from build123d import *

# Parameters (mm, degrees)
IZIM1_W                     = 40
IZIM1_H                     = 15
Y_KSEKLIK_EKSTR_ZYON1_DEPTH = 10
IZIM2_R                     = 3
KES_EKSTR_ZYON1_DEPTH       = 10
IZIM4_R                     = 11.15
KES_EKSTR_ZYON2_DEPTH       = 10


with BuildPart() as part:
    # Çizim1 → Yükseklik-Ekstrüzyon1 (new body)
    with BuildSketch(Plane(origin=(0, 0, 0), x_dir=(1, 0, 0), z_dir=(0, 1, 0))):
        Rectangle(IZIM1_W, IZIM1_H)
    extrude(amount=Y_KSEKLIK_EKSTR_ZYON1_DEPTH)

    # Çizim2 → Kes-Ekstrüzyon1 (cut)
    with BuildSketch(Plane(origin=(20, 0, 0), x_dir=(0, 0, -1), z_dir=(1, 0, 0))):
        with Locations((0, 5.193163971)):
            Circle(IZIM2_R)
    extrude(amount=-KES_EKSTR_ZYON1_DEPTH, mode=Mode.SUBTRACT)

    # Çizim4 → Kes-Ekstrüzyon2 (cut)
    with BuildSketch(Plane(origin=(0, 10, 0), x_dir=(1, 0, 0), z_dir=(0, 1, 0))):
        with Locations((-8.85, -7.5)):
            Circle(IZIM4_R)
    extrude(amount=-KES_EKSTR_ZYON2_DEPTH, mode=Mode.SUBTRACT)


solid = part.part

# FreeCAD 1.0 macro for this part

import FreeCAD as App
import Part
import Sketcher

doc = App.newDocument("Part")
body = doc.addObject("PartDesign::Body", "Body")

sketch1 = body.newObject("Sketcher::SketchObject", "Sketch")
sketch1.AttachmentSupport = (doc.getObject("XZ_Plane"), [""])
sketch1.MapMode = "FlatFace"
sketch1.addGeometry([
    Part.LineSegment(App.Vector(-20, -8, 0), App.Vector(-20, 8, 0)),
    Part.LineSegment(App.Vector(-20, 8, 0), App.Vector(20, 8, 0)),
    Part.LineSegment(App.Vector(20, 8, 0), App.Vector(20, -8, 0)),
    Part.LineSegment(App.Vector(20, -8, 0), App.Vector(-20, -8, 0)),
], False)
sketch1.addConstraint([
    Sketcher.Constraint("Coincident", 0, 2, 1, 1),
    Sketcher.Constraint("Coincident", 1, 2, 2, 1),
    Sketcher.Constraint("Coincident", 2, 2, 3, 1),
    Sketcher.Constraint("Coincident", 3, 2, 0, 1),
    Sketcher.Constraint("Vertical", 0),
    Sketcher.Constraint("Horizontal", 1),
    Sketcher.Constraint("Vertical", 2),
    Sketcher.Constraint("Horizontal", 3),
    Sketcher.Constraint("Symmetric", 0, 2, 2, 2, -1, 1),
    Sketcher.Constraint("DistanceX", 1, 1, 1, 2, 40.0),
    Sketcher.Constraint("DistanceY", 0, 1, 0, 2, 15.0),
])
pad1 = body.newObject("PartDesign::Pad", "Pad")
pad1.Profile = sketch1
pad1.Length = 10
pad1.Reversed = True

sketch2 = body.newObject("Sketcher::SketchObject", "Sketch001")
sketch2.AttachmentSupport = (doc.getObject("YZ_Plane"), [""])
sketch2.MapMode = "FlatFace"
sketch2.AttachmentOffset = App.Placement(App.Vector(0, 0, 20), App.Rotation())
sketch2.addGeometry(Part.Circle(App.Vector(5.2, 0, 0), App.Vector(0, 0, 1), 3), False)
sketch2.addConstraint([
    Sketcher.Constraint("PointOnObject", 0, 3, -1),
    Sketcher.Constraint("Diameter", 0, 6.0),
    Sketcher.Constraint("DistanceX", -1, 1, 0, 3, 5.193164),
])
pocket1 = body.newObject("PartDesign::Pocket", "Pocket")
pocket1.Profile = sketch2
pocket1.Length = 10

sketch3 = body.newObject("Sketcher::SketchObject", "Sketch002")
sketch3.AttachmentSupport = (doc.getObject("XZ_Plane"), [""])
sketch3.MapMode = "FlatFace"
sketch3.AttachmentOffset = App.Placement(App.Vector(0, 0, -10), App.Rotation())
sketch3.addGeometry(Part.Circle(App.Vector(-9, 8, 0), App.Vector(0, 0, 1), 11), False)
sketch3.addConstraint([
    Sketcher.Constraint("Diameter", 0, 22.3),
    Sketcher.Constraint("DistanceY", -1, 1, 0, 3, 7.5),
    Sketcher.Constraint("DistanceX", 0, 3, -1, 1, 8.85),
])
pocket2 = body.newObject("PartDesign::Pocket", "Pocket001")
pocket2.Profile = sketch3
pocket2.Length = 10
pocket2.Reversed = True

doc.recompute()
